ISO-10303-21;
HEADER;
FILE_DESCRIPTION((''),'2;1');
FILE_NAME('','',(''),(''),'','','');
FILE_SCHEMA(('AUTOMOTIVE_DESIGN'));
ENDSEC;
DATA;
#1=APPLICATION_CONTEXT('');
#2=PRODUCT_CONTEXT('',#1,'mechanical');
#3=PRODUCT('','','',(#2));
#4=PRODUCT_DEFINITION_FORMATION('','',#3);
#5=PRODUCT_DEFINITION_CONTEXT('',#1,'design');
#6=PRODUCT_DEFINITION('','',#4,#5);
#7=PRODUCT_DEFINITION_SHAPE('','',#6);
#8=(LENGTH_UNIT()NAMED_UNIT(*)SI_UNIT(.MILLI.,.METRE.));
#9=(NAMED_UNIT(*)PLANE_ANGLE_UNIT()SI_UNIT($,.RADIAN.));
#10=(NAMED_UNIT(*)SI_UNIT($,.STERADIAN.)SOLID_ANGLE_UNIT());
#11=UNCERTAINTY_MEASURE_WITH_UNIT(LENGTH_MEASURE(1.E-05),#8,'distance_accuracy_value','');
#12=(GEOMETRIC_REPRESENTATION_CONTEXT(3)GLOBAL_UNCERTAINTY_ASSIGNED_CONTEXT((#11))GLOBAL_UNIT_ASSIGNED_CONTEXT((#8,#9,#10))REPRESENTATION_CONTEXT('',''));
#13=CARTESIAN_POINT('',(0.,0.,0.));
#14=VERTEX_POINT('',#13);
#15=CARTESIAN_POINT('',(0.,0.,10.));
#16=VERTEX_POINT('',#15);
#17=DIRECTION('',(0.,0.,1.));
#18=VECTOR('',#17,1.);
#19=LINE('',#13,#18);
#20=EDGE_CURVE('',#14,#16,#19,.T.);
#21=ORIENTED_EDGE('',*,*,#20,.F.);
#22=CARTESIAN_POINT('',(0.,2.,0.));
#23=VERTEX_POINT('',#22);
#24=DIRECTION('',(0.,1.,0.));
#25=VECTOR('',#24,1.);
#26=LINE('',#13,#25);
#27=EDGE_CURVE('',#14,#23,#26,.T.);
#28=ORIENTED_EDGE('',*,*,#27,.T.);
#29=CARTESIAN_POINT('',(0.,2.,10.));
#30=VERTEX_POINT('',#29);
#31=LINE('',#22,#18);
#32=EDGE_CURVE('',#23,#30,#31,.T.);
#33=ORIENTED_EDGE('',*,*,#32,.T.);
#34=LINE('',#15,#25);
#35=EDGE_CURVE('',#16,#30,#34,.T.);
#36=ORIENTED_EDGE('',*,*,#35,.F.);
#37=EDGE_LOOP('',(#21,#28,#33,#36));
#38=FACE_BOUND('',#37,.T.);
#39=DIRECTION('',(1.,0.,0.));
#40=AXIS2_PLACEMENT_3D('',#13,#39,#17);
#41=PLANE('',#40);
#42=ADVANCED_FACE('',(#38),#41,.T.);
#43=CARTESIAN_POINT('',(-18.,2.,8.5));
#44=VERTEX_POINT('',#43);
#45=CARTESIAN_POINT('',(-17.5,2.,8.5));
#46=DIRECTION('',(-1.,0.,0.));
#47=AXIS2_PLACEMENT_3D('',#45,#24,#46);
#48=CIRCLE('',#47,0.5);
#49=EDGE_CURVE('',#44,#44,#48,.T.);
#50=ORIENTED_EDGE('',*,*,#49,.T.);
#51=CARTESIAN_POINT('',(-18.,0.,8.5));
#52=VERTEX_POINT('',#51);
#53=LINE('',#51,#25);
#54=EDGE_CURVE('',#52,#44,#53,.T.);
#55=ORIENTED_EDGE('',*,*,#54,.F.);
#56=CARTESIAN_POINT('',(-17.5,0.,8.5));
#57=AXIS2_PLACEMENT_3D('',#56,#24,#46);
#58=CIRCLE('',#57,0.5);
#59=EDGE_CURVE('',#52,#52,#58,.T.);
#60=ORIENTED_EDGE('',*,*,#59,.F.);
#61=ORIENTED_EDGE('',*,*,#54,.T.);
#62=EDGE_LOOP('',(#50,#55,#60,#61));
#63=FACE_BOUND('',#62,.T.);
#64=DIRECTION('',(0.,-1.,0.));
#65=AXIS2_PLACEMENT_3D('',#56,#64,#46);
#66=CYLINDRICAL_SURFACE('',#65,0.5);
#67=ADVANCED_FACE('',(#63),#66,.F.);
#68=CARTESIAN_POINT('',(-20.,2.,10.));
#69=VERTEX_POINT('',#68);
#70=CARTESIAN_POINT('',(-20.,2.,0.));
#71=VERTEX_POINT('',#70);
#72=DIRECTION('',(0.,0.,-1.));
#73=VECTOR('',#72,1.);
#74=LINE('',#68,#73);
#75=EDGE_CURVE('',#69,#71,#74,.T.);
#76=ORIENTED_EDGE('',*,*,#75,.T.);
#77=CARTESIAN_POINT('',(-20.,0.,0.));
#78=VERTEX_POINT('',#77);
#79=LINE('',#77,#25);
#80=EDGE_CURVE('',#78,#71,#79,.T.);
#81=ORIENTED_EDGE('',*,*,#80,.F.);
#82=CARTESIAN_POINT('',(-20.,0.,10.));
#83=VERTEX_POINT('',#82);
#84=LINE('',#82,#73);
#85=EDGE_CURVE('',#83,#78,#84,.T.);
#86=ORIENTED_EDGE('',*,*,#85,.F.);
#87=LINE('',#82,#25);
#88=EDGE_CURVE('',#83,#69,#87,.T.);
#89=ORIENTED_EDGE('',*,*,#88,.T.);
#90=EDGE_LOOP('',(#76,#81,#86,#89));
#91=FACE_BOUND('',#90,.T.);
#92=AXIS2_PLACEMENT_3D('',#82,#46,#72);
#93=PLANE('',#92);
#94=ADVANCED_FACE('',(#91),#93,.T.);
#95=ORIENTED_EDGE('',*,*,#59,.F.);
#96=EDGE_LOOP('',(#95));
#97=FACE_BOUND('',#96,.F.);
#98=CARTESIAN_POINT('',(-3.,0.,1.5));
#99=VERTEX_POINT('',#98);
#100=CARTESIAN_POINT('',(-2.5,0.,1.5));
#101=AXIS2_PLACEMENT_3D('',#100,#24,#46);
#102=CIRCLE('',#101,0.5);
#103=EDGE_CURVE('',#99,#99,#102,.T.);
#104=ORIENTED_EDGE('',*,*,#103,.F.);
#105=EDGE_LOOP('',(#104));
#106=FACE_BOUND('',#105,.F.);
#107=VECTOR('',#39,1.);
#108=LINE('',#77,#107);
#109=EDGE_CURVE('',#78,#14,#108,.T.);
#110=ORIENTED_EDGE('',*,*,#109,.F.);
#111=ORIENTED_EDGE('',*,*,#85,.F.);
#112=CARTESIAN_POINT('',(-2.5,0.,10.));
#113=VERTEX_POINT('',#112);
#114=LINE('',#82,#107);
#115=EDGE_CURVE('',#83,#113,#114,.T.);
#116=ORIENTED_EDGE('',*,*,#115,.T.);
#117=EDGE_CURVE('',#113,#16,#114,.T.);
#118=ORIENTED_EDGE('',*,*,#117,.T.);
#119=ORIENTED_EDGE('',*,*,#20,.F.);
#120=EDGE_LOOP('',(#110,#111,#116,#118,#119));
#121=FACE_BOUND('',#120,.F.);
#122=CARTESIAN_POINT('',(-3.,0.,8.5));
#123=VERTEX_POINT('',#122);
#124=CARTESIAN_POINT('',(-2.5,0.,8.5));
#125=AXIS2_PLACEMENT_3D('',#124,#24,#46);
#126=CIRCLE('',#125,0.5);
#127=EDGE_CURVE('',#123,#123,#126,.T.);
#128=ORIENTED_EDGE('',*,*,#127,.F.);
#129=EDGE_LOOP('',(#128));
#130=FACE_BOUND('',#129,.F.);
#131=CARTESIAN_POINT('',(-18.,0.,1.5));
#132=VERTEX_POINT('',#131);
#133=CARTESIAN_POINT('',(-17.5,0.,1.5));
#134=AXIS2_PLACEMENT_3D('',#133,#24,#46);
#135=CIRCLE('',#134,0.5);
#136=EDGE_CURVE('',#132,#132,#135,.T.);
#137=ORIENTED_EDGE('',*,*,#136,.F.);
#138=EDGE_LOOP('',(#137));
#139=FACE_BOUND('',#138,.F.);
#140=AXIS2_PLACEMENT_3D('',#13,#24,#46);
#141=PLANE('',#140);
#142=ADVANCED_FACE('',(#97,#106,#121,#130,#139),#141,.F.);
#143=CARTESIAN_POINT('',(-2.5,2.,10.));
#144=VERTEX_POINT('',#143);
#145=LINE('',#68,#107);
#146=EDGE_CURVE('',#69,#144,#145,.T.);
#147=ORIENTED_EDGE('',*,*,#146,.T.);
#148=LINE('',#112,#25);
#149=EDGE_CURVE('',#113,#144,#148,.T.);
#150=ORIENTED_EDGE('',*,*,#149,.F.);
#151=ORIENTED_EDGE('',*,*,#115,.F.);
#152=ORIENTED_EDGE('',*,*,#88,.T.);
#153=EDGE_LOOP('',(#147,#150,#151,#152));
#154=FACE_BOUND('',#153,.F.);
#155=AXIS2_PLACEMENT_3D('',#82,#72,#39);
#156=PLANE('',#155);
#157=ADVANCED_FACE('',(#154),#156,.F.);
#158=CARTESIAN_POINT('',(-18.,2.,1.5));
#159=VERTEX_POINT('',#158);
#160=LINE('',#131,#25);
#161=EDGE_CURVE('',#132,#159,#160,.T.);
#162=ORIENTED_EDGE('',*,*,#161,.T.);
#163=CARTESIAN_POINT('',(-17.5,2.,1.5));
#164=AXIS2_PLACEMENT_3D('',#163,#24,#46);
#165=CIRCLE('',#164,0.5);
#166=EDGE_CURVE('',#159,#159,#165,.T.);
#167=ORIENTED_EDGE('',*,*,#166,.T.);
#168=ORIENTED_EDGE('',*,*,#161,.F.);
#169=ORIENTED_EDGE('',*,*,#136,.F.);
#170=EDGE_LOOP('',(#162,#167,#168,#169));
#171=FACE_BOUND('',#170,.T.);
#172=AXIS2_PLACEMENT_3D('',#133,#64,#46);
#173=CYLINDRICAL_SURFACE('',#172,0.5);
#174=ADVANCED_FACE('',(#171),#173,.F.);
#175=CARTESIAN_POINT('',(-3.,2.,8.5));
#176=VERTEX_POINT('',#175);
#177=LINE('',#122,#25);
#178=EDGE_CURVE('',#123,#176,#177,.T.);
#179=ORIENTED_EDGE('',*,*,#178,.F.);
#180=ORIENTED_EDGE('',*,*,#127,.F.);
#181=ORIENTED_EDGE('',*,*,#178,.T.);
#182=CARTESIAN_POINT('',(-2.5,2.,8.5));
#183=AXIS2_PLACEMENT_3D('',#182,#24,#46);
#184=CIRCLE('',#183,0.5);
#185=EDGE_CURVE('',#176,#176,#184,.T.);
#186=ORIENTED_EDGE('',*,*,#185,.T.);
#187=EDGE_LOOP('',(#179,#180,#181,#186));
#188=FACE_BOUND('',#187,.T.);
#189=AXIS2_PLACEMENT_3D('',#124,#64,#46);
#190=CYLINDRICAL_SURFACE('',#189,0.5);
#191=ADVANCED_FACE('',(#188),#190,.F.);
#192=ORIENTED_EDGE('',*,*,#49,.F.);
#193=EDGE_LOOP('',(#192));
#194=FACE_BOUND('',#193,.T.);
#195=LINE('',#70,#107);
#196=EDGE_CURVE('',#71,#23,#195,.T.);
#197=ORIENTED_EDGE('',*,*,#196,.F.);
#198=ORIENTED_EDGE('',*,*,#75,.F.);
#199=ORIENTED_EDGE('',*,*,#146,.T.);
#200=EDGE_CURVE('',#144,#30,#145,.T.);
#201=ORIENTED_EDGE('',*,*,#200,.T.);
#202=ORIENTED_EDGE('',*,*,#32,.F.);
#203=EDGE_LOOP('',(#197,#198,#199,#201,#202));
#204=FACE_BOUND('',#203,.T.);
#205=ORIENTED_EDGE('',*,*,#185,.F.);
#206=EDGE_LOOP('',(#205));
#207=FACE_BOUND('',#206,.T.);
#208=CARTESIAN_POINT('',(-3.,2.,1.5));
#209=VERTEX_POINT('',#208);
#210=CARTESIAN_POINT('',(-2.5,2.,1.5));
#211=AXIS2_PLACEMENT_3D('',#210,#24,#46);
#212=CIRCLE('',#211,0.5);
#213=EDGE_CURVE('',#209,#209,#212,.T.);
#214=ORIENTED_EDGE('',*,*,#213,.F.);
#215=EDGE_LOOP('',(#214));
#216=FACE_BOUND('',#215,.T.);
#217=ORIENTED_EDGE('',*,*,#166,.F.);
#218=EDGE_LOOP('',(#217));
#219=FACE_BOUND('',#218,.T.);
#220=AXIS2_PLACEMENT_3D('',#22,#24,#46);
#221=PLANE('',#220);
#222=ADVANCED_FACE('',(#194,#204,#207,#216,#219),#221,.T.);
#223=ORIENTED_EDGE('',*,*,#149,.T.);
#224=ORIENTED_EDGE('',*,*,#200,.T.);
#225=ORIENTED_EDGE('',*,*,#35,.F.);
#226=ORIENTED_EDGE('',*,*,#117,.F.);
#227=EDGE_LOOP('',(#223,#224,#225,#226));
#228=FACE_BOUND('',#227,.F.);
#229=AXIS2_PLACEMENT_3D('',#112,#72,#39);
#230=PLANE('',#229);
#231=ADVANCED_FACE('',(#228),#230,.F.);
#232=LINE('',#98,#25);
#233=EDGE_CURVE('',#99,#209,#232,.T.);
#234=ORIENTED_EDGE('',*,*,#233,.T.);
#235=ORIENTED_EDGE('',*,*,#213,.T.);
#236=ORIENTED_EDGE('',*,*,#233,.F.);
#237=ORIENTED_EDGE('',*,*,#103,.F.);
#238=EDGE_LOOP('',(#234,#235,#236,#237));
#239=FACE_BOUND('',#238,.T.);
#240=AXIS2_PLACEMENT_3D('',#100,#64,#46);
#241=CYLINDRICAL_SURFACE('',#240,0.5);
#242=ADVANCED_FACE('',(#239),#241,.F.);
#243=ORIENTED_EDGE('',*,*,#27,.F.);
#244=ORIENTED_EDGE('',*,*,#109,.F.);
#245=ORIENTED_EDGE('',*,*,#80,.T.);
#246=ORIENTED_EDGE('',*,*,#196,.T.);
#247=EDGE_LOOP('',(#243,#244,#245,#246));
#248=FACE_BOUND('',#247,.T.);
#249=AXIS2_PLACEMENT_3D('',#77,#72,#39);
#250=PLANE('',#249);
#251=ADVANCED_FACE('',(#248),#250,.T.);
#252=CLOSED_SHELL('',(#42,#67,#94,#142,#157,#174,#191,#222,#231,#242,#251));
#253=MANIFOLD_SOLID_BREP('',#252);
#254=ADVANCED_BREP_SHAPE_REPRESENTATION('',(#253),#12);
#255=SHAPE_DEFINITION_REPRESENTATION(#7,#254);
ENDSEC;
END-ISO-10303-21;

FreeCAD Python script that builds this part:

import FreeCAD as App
import Part
import Sketcher

V = App.Vector

doc = App.newDocument("Part")
params = doc.addObject("Spreadsheet::Sheet", "Params")
for row, (alias, value) in enumerate([
    ("sketch1_diameter", "1 mm"),
    ("sketch1_width", "20 mm"),
    ("sketch1_height", "10 mm"),
    ("pad1_length", "2 mm"),
], start=1):
    params.set(f"A{row}", alias)
    params.set(f"B{row}", "=" + value)
    params.setAlias(f"B{row}", alias)

body = doc.addObject("PartDesign::Body", "Body")

# Sketch on XZ plane
sketch1 = body.newObject("Sketcher::SketchObject", "Sketch")
sketch1.AttachmentSupport = (doc.getObject("XZ_Plane"), [""])
sketch1.MapMode = "FlatFace"
sketch1.addGeometry([
    Part.LineSegment(V(-20, 0, 0), V(-20, 10, 0)),  # 0
    Part.LineSegment(V(-20, 10, 0), V(0, 10, 0)),  # 1
    Part.LineSegment(V(0, 10, 0), V(0, 0, 0)),  # 2
    Part.LineSegment(V(0, 0, 0), V(-20, 0, 0)),  # 3
    Part.Circle(V(-2.5, 1.5, 0), V(0, 0, 1), 0.5),  # 4
    Part.Circle(V(-17.5, 1.5, 0), V(0, 0, 1), 0.5),  # 5
    Part.Circle(V(-2.5, 8.5, 0), V(0, 0, 1), 0.5),  # 6
    Part.Circle(V(-17.5, 8.5, 0), V(0, 0, 1), 0.5),  # 7
], False)
sketch1.addConstraint([
    Sketcher.Constraint("Coincident", 0, 2, 1, 1),
    Sketcher.Constraint("Coincident", 1, 2, 2, 1),
    Sketcher.Constraint("Coincident", 2, 2, 3, 1),
    Sketcher.Constraint("Coincident", 3, 2, 0, 1),
    Sketcher.Constraint("Vertical", 0),
    Sketcher.Constraint("Horizontal", 1),
    Sketcher.Constraint("Vertical", 2),
    Sketcher.Constraint("Horizontal", 3),
    Sketcher.Constraint("Coincident", 2, 2, -1, 1),
    Sketcher.Constraint("Equal", 4, 5),
    Sketcher.Constraint("Equal", 5, 6),
    Sketcher.Constraint("Equal", 6, 7),
    Sketcher.Constraint("Horizontal", 4, 3, 5, 3),
    Sketcher.Constraint("Horizontal", 6, 3, 7, 3),
    Sketcher.Constraint("Vertical", 4, 3, 6, 3),
    Sketcher.Constraint("Vertical", 5, 3, 7, 3),
    Sketcher.Constraint("Diameter", 4, 1.0),
    Sketcher.Constraint("DistanceX", 1, 1, 1, 2, 20.0),
    Sketcher.Constraint("DistanceX", 4, 3, -1, 1, 2.5),
    Sketcher.Constraint("DistanceX", 0, 2, 7, 3, 2.5),
    Sketcher.Constraint("DistanceY", 0, 1, 0, 2, 10.0),
    Sketcher.Constraint("DistanceY", 4, 3, 6, 3, 7.0),
    Sketcher.Constraint("DistanceY", -1, 1, 4, 3, 1.5),
])
sketch1.setExpression("Constraints[16]", "Params.sketch1_diameter")
sketch1.setExpression("Constraints[17]", "Params.sketch1_width")
sketch1.setExpression("Constraints[20]", "Params.sketch1_height")
pad1 = body.newObject("PartDesign::Pad", "Pad")
pad1.Profile = sketch1
pad1.setExpression("Length", "Params.pad1_length")
pad1.Reversed = True

doc.recompute()
